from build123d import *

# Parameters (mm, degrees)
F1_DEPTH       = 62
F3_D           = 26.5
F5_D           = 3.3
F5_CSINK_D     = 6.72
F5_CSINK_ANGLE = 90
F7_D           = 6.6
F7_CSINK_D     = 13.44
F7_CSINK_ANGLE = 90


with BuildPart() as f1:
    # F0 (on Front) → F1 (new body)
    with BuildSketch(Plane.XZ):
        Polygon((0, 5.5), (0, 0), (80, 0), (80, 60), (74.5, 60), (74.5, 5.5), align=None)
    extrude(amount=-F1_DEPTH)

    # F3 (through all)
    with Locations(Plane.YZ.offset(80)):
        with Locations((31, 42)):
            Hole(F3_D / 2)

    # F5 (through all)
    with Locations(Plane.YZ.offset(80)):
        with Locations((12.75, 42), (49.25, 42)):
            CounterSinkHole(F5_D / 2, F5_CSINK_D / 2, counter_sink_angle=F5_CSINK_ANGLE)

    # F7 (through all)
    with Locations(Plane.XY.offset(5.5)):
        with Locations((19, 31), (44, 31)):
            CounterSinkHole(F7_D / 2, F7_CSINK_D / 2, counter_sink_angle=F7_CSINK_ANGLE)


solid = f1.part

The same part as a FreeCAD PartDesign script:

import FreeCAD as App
import Part
import Sketcher

doc = App.newDocument("Part")
body = doc.addObject("PartDesign::Body", "Body")

sketch1 = body.newObject("Sketcher::SketchObject", "Sketch")
sketch1.AttachmentSupport = (doc.getObject("XZ_Plane"), [""])
sketch1.MapMode = "FlatFace"
sketch1.addGeometry(Part.LineSegment(App.Vector(0, 5.5, 0), App.Vector(0, 0, 0)), False)
sketch1.addGeometry(Part.LineSegment(App.Vector(0, 0, 0), App.Vector(80, 0, 0)), False)
sketch1.addGeometry(Part.LineSegment(App.Vector(80, 0, 0), App.Vector(80, 60, 0)), False)
sketch1.addGeometry(Part.LineSegment(App.Vector(80, 60, 0), App.Vector(74.5, 60, 0)), False)
sketch1.addGeometry(Part.LineSegment(App.Vector(74.5, 60, 0), App.Vector(74.5, 5.5, 0)), False)
sketch1.addGeometry(Part.LineSegment(App.Vector(74.5, 5.5, 0), App.Vector(0, 5.5, 0)), False)
sketch1.addConstraint(Sketcher.Constraint("Coincident", 0, 2, 1, 1))
sketch1.addConstraint(Sketcher.Constraint("Coincident", 1, 2, 2, 1))
sketch1.addConstraint(Sketcher.Constraint("Coincident", 2, 2, 3, 1))
sketch1.addConstraint(Sketcher.Constraint("Coincident", 3, 2, 4, 1))
sketch1.addConstraint(Sketcher.Constraint("Coincident", 4, 2, 5, 1))
sketch1.addConstraint(Sketcher.Constraint("Coincident", 5, 2, 0, 1))
sketch1.addConstraint(Sketcher.Constraint("Vertical", 0))
sketch1.addConstraint(Sketcher.Constraint("Horizontal", 1))
sketch1.addConstraint(Sketcher.Constraint("Vertical", 2))
sketch1.addConstraint(Sketcher.Constraint("Horizontal", 3))
sketch1.addConstraint(Sketcher.Constraint("Vertical", 4))
sketch1.addConstraint(Sketcher.Constraint("Horizontal", 5))
sketch1.addConstraint(Sketcher.Constraint("Coincident", 0, 2, -1, 1))
sketch1.addConstraint(Sketcher.Constraint("Equal", 3, 0))
sketch1.addConstraint(Sketcher.Constraint("DistanceX", 1, 1, 1, 2, 80.0))
sketch1.addConstraint(Sketcher.Constraint("DistanceY", 2, 1, 2, 2, 60.0))
sketch1.addConstraint(Sketcher.Constraint("DistanceX", 3, 2, 3, 1, 5.5))
pad1 = body.newObject("PartDesign::Pad", "Pad")
pad1.Profile = sketch1
pad1.Length = 62
pad1.Reversed = True

sketch2 = body.newObject("Sketcher::SketchObject", "Sketch001")
sketch2.AttachmentSupport = (doc.getObject("YZ_Plane"), [""])
sketch2.MapMode = "FlatFace"
sketch2.AttachmentOffset = App.Placement(App.Vector(0, 0, 80), App.Rotation())
sketch2.addGeometry(Part.Circle(App.Vector(31, 42, 0), App.Vector(0, 0, 1), 13.25), False)
sketch2.addConstraint(Sketcher.Constraint("Diameter", 0, 26.5))
sketch2.addConstraint(Sketcher.Constraint("DistanceX", -1, 1, 0, 3, 31.0))
sketch2.addConstraint(Sketcher.Constraint("DistanceY", -1, 1, 0, 3, 42.0))
doc.recompute()
hole = body.newObject("PartDesign::Hole", "Hole")
hole.Profile = sketch2
hole.ThreadType = "None"
hole.Diameter = 26.5
hole.DepthType = "ThroughAll"

sketch3 = body.newObject("Sketcher::SketchObject", "Sketch002")
sketch3.AttachmentSupport = (doc.getObject("YZ_Plane"), [""])
sketch3.MapMode = "FlatFace"
sketch3.AttachmentOffset = App.Placement(App.Vector(0, 0, 80), App.Rotation())
sketch3.addGeometry(Part.Circle(App.Vector(12.75, 42, 0), App.Vector(0, 0, 1), 1.65), False)
sketch3.addGeometry(Part.Circle(App.Vector(49.25, 42, 0), App.Vector(0, 0, 1), 1.65), False)
sketch3.addConstraint(Sketcher.Constraint("Equal", 0, 1))
sketch3.addConstraint(Sketcher.Constraint("Horizontal", 0, 3, 1, 3))
sketch3.addConstraint(Sketcher.Constraint("Diameter", 0, 3.3))
sketch3.addConstraint(Sketcher.Constraint("DistanceY", -1, 1, 0, 3, 42.0))
sketch3.addConstraint(Sketcher.Constraint("DistanceX", 0, 3, 1, 3, 36.5))
sketch3.addConstraint(Sketcher.Constraint("DistanceX", -1, 1, 0, 3, 12.75))
doc.recompute()
hole2 = body.newObject("PartDesign::Hole", "Hole001")
hole2.Profile = sketch3
hole2.ThreadType = "None"
hole2.Diameter = 3.3
hole2.DepthType = "ThroughAll"
hole2.HoleCutType = "Countersink"
hole2.HoleCutDiameter = 6.72
hole2.HoleCutCountersinkAngle = 90

sketch4 = body.newObject("Sketcher::SketchObject", "Sketch003")
sketch4.AttachmentSupport = (doc.getObject("XY_Plane"), [""])
sketch4.MapMode = "FlatFace"
sketch4.AttachmentOffset = App.Placement(App.Vector(0, 0, 5.5), App.Rotation())
sketch4.addGeometry(Part.Circle(App.Vector(19, 31, 0), App.Vector(0, 0, 1), 3.3), False)
sketch4.addGeometry(Part.Circle(App.Vector(44, 31, 0), App.Vector(0, 0, 1), 3.3), False)
sketch4.addConstraint(Sketcher.Constraint("Equal", 0, 1))
sketch4.addConstraint(Sketcher.Constraint("Horizontal", 0, 3, 1, 3))
sketch4.addConstraint(Sketcher.Constraint("Diameter", 0, 6.6))
sketch4.addConstraint(Sketcher.Constraint("DistanceX", -1, 1, 0, 3, 19.0))
sketch4.addConstraint(Sketcher.Constraint("DistanceY", -1, 1, 0, 3, 31.0))
sketch4.addConstraint(Sketcher.Constraint("DistanceX", -1, 1, 1, 3, 44.0))
doc.recompute()
hole3 = body.newObject("PartDesign::Hole", "Hole002")
hole3.Profile = sketch4
hole3.ThreadType = "None"
hole3.Diameter = 6.6
hole3.DepthType = "ThroughAll"
hole3.HoleCutType = "Countersink"
hole3.HoleCutDiameter = 13.44
hole3.HoleCutCountersinkAngle = 90

doc.recompute()
